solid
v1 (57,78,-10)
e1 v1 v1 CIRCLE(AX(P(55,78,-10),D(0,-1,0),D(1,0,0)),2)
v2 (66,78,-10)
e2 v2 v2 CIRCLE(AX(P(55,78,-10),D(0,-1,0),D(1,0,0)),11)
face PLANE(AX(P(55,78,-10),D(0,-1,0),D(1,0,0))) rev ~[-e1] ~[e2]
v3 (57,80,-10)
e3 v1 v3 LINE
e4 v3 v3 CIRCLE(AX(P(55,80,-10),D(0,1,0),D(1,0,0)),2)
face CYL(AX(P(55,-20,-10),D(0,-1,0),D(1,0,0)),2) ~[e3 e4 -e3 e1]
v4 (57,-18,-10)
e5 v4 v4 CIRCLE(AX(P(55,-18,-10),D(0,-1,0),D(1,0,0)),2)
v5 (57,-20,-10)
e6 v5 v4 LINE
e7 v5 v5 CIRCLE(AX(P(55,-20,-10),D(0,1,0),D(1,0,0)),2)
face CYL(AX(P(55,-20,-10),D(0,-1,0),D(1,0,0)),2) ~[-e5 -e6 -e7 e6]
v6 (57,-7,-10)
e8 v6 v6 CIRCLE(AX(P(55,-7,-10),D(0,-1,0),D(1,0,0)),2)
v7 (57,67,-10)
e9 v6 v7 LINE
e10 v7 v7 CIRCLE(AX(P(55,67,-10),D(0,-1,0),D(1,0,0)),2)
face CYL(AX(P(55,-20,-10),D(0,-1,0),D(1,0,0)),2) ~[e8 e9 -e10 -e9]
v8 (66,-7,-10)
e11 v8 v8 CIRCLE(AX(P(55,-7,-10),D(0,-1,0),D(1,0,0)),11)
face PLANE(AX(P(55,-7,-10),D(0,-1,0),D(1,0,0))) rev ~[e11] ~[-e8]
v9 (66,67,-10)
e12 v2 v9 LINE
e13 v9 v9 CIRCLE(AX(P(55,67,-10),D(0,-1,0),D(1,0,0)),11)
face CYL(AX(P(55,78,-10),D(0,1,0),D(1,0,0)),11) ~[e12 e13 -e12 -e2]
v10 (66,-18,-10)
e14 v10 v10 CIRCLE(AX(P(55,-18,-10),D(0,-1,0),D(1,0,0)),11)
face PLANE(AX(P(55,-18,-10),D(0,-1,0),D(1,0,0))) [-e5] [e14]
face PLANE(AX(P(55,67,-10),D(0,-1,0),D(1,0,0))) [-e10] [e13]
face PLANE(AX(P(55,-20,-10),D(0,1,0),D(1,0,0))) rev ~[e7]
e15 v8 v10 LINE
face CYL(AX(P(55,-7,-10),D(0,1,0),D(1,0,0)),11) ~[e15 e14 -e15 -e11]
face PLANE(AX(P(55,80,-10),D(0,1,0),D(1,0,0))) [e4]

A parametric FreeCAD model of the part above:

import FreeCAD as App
import Part
import Sketcher
Q = App.Units.Quantity

doc = App.newDocument("Part")
params = doc.addObject("Spreadsheet::Sheet", "Params")
for row, (alias, value) in enumerate([
    ("sketch1_diameter", "22 mm"),
    ("pad1_length", "11 mm"),
    ("sketch2_diameter", "22 mm"),
    ("pad2_length", "11 mm"),
    ("sketch3_diameter", "4 mm"),
    ("pad3_length", "100 mm"),
], start=1):
    params.set(f"A{row}", alias)
    params.set(f"B{row}", "=" + value)
    params.setAlias(f"B{row}", alias)

body = doc.addObject("PartDesign::Body", "Body")

sketch1 = doc.addObject("Sketcher::SketchObject", "Sketch")
body.addObject(sketch1)
sketch1.AttachmentSupport = (doc.XY_Plane, [""])
sketch1.MapMode = "FlatFace"
sketch1.addGeometry(Part.Circle(App.Vector(0, 0, 0), App.Vector(0, 0, 1), 11), False)
sketch1.addConstraint([
    Sketcher.Constraint("Coincident", 0, 3, -1, 1),
    Sketcher.Constraint("Diameter", 0, Q("22 mm")),
])
sketch1.setExpression("Constraints[1]", "Params.sketch1_diameter")
pad1 = doc.addObject("PartDesign::Pad", "Pad")
body.addObject(pad1)
pad1.Profile = sketch1
pad1.setExpression("Length", "Params.pad1_length")
body2 = doc.addObject("PartDesign::Body", "Body001")
doc.recompute()

body.Placement = App.Placement(App.Vector(0, 0, 0), App.Rotation(App.Vector(1, 0, 0), 90))
boolean = doc.addObject("PartDesign::Boolean", "Boolean")
body2.addObject(boolean)
boolean.Type = "Fuse"
boolean.addObjects([body])
body3 = doc.addObject("PartDesign::Body", "Body002")
doc.recompute()

body2.Placement = App.Placement(App.Vector(20, 78, 14), App.Rotation(App.Vector(0, 0, 1), 0))
boolean2 = doc.addObject("PartDesign::Boolean", "Boolean001")
body3.addObject(boolean2)
boolean2.Type = "Fuse"
boolean2.addObjects([body2])
body4 = doc.addObject("PartDesign::Body", "Body003")

sketch2 = doc.addObject("Sketcher::SketchObject", "Sketch001")
body4.addObject(sketch2)
sketch2.AttachmentSupport = (doc.getObject("XY_Plane003"), [""])
sketch2.MapMode = "FlatFace"
sketch2.addGeometry(Part.Circle(App.Vector(0, 0, 0), App.Vector(0, 0, 1), 11), False)
sketch2.addConstraint([
    Sketcher.Constraint("Coincident", 0, 3, -1, 1),
    Sketcher.Constraint("Diameter", 0, Q("22 mm")),
])
sketch2.setExpression("Constraints[1]", "Params.sketch2_diameter")
pad2 = doc.addObject("PartDesign::Pad", "Pad001")
body4.addObject(pad2)
pad2.Profile = sketch2
pad2.setExpression("Length", "Params.pad2_length")
body5 = doc.addObject("PartDesign::Body", "Body004")
doc.recompute()

body4.Placement = App.Placement(App.Vector(0, 0, 0), App.Rotation(App.Vector(1, 0, 0), 90))
boolean3 = doc.addObject("PartDesign::Boolean", "Boolean002")
body5.addObject(boolean3)
boolean3.Type = "Fuse"
boolean3.addObjects([body4])
body6 = doc.addObject("PartDesign::Body", "Body005")
doc.recompute()

body5.Placement = App.Placement(App.Vector(20, -7, 14), App.Rotation(App.Vector(0, 0, 1), 0))
boolean4 = doc.addObject("PartDesign::Boolean", "Boolean003")
body6.addObject(boolean4)
boolean4.Type = "Fuse"
boolean4.addObjects([body5])
body7 = doc.addObject("PartDesign::Body", "Body006")

sketch3 = doc.addObject("Sketcher::SketchObject", "Sketch002")
body7.addObject(sketch3)
sketch3.AttachmentSupport = (doc.getObject("XY_Plane006"), [""])
sketch3.MapMode = "FlatFace"
sketch3.addGeometry(Part.Circle(App.Vector(0, 0, 0), App.Vector(0, 0, 1), 2), False)
sketch3.addConstraint([
    Sketcher.Constraint("Coincident", 0, 3, -1, 1),
    Sketcher.Constraint("Diameter", 0, Q("4 mm")),
])
sketch3.setExpression("Constraints[1]", "Params.sketch3_diameter")
pad3 = doc.addObject("PartDesign::Pad", "Pad002")
body7.addObject(pad3)
pad3.Profile = sketch3
pad3.setExpression("Length", "Params.pad3_length")
body8 = doc.addObject("PartDesign::Body", "Body007")
doc.recompute()

body7.Placement = App.Placement(App.Vector(0, 0, 0), App.Rotation(App.Vector(1, 0, 0), 270))
boolean5 = doc.addObject("PartDesign::Boolean", "Boolean004")
body8.addObject(boolean5)
boolean5.Type = "Fuse"
boolean5.addObjects([body7])
body9 = doc.addObject("PartDesign::Body", "Body008")
doc.recompute()

body8.Placement = App.Placement(App.Vector(20, -20, 14), App.Rotation(App.Vector(0, 0, 1), 0))
boolean6 = doc.addObject("PartDesign::Boolean", "Boolean005")
body9.addObject(boolean6)
boolean6.Type = "Fuse"
boolean6.addObjects([body8])
doc.recompute()

boolean7 = doc.addObject("PartDesign::Boolean", "Boolean006")
body9.addObject(boolean7)
boolean7.Type = "Fuse"
boolean7.addObjects([body3])
doc.recompute()

boolean8 = doc.addObject("PartDesign::Boolean", "Boolean007")
body9.addObject(boolean8)
boolean8.Type = "Fuse"
boolean8.addObjects([body6])
body10 = doc.addObject("PartDesign::Body", "Body009")
doc.recompute()

body9.Placement = App.Placement(App.Vector(35, 0, -24), App.Rotation(App.Vector(0, 0, 1), 0))
boolean9 = doc.addObject("PartDesign::Boolean", "Boolean008")
body10.addObject(boolean9)
boolean9.Type = "Fuse"
boolean9.addObjects([body9])

doc.recompute()
